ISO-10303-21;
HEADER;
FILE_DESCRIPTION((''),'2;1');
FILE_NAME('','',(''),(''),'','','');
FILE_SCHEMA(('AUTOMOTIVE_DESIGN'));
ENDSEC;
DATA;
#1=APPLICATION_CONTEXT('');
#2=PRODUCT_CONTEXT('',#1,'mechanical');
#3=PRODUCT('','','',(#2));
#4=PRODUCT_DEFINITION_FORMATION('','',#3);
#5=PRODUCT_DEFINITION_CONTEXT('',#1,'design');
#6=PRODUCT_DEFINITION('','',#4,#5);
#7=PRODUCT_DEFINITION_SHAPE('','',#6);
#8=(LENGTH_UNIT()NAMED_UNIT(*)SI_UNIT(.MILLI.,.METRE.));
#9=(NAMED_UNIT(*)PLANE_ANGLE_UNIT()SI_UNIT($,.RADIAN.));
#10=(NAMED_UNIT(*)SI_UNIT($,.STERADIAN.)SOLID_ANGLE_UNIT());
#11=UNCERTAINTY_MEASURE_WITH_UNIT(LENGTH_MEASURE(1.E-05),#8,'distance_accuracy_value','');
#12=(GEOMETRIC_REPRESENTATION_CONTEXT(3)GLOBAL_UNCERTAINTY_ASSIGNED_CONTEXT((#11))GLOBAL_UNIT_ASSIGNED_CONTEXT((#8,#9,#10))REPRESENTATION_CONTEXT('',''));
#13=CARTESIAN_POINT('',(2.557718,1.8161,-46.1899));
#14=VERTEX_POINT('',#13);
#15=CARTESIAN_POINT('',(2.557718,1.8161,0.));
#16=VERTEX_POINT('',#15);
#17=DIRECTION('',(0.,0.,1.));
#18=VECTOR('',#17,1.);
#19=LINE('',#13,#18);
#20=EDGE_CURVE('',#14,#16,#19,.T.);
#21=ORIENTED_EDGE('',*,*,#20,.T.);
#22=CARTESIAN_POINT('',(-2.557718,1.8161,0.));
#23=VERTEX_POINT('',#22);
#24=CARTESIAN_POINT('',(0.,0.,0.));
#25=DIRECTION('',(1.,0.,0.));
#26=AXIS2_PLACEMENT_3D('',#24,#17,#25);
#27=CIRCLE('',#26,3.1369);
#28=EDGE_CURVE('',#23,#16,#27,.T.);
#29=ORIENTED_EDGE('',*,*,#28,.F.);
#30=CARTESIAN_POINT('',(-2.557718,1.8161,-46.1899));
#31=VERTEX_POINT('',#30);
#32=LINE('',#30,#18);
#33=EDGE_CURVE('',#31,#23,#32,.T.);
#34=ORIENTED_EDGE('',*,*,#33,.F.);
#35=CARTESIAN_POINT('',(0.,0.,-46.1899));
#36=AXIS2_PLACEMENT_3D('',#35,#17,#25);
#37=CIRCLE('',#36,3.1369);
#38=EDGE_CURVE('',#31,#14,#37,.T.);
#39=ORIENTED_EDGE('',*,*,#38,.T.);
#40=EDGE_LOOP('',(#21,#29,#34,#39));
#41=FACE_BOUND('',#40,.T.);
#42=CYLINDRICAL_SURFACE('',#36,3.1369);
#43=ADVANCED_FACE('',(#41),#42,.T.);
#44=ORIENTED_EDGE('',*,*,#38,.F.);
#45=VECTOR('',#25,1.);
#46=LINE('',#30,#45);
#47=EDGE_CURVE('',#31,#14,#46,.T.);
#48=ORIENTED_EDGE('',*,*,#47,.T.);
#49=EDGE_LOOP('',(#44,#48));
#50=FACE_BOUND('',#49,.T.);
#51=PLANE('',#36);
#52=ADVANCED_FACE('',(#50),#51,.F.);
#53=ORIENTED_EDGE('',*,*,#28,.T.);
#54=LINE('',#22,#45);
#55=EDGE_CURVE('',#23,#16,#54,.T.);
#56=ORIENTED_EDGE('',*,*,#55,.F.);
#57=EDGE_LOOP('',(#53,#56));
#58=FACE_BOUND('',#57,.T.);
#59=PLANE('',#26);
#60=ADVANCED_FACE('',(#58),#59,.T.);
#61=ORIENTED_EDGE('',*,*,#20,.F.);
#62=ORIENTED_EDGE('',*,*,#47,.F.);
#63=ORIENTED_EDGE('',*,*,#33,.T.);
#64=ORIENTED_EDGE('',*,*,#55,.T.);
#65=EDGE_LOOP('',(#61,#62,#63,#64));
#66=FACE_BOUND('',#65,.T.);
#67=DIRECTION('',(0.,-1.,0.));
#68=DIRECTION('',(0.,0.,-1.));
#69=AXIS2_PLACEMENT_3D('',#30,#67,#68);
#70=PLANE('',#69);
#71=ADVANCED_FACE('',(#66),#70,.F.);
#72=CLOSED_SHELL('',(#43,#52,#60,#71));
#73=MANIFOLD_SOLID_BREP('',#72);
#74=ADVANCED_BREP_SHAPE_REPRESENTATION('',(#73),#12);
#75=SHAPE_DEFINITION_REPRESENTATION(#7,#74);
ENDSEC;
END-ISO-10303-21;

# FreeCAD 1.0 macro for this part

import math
import FreeCAD as App
import Part
import Sketcher
from FreeCAD import Vector
Q = App.Units.Quantity

doc = App.newDocument("Part")
body = doc.addObject("PartDesign::Body", "Body")

# Sketch on XY plane
sketch1 = body.newObject("Sketcher::SketchObject", "Sketch")
sketch1.AttachmentSupport = (doc.getObject("XY_Plane"), [""])
sketch1.MapMode = "FlatFace"
sketch1.addGeometry(Part.Circle(Vector(0, 0, 0), Vector(0, 0, 1), 3.1), False)
sketch1.addConstraint(Sketcher.Constraint("Coincident", 0, 3, -1, 1))
sketch1.addConstraint(Sketcher.Constraint("Diameter", 0, Q("0.247 in")))
pad1 = body.newObject("PartDesign::Pad", "Pad")
pad1.Profile = sketch1
pad1.Length = Q("1.8185 in")
pad1.Reversed = True

# Sketch on XY plane
sketch2 = body.newObject("Sketcher::SketchObject", "Sketch001")
sketch2.AttachmentSupport = (doc.getObject("XY_Plane"), [""])
sketch2.MapMode = "FlatFace"
sketch2.addGeometry(Part.LineSegment(Vector(-2.6, 1.8, 0), Vector(2.6, 1.8, 0)), False)
sketch2.addGeometry(Part.ArcOfCircle(Part.Circle(Vector(0, 0, 0), Vector(0, 0, 1), 3.1), math.radians(35), math.radians(145)), False)
sketch2.addConstraint(Sketcher.Constraint("Coincident", 0, 1, 1, 2))
sketch2.addConstraint(Sketcher.Constraint("Coincident", 1, 1, 0, 2))
sketch2.addConstraint(Sketcher.Constraint("Horizontal", 0))
sketch2.addConstraint(Sketcher.Constraint("Coincident", 1, 3, -1, 1))
sketch2.addConstraint(Sketcher.Constraint("Radius", 1, Q("0.1235 in")))
sketch2.addConstraint(Sketcher.Constraint("DistanceY", -1, 1, 0, 1, Q("0.0715 in")))
pocket1 = body.newObject("PartDesign::Pocket", "Pocket")
pocket1.Profile = sketch2
pocket1.Type = "ThroughAll"

doc.recompute()
